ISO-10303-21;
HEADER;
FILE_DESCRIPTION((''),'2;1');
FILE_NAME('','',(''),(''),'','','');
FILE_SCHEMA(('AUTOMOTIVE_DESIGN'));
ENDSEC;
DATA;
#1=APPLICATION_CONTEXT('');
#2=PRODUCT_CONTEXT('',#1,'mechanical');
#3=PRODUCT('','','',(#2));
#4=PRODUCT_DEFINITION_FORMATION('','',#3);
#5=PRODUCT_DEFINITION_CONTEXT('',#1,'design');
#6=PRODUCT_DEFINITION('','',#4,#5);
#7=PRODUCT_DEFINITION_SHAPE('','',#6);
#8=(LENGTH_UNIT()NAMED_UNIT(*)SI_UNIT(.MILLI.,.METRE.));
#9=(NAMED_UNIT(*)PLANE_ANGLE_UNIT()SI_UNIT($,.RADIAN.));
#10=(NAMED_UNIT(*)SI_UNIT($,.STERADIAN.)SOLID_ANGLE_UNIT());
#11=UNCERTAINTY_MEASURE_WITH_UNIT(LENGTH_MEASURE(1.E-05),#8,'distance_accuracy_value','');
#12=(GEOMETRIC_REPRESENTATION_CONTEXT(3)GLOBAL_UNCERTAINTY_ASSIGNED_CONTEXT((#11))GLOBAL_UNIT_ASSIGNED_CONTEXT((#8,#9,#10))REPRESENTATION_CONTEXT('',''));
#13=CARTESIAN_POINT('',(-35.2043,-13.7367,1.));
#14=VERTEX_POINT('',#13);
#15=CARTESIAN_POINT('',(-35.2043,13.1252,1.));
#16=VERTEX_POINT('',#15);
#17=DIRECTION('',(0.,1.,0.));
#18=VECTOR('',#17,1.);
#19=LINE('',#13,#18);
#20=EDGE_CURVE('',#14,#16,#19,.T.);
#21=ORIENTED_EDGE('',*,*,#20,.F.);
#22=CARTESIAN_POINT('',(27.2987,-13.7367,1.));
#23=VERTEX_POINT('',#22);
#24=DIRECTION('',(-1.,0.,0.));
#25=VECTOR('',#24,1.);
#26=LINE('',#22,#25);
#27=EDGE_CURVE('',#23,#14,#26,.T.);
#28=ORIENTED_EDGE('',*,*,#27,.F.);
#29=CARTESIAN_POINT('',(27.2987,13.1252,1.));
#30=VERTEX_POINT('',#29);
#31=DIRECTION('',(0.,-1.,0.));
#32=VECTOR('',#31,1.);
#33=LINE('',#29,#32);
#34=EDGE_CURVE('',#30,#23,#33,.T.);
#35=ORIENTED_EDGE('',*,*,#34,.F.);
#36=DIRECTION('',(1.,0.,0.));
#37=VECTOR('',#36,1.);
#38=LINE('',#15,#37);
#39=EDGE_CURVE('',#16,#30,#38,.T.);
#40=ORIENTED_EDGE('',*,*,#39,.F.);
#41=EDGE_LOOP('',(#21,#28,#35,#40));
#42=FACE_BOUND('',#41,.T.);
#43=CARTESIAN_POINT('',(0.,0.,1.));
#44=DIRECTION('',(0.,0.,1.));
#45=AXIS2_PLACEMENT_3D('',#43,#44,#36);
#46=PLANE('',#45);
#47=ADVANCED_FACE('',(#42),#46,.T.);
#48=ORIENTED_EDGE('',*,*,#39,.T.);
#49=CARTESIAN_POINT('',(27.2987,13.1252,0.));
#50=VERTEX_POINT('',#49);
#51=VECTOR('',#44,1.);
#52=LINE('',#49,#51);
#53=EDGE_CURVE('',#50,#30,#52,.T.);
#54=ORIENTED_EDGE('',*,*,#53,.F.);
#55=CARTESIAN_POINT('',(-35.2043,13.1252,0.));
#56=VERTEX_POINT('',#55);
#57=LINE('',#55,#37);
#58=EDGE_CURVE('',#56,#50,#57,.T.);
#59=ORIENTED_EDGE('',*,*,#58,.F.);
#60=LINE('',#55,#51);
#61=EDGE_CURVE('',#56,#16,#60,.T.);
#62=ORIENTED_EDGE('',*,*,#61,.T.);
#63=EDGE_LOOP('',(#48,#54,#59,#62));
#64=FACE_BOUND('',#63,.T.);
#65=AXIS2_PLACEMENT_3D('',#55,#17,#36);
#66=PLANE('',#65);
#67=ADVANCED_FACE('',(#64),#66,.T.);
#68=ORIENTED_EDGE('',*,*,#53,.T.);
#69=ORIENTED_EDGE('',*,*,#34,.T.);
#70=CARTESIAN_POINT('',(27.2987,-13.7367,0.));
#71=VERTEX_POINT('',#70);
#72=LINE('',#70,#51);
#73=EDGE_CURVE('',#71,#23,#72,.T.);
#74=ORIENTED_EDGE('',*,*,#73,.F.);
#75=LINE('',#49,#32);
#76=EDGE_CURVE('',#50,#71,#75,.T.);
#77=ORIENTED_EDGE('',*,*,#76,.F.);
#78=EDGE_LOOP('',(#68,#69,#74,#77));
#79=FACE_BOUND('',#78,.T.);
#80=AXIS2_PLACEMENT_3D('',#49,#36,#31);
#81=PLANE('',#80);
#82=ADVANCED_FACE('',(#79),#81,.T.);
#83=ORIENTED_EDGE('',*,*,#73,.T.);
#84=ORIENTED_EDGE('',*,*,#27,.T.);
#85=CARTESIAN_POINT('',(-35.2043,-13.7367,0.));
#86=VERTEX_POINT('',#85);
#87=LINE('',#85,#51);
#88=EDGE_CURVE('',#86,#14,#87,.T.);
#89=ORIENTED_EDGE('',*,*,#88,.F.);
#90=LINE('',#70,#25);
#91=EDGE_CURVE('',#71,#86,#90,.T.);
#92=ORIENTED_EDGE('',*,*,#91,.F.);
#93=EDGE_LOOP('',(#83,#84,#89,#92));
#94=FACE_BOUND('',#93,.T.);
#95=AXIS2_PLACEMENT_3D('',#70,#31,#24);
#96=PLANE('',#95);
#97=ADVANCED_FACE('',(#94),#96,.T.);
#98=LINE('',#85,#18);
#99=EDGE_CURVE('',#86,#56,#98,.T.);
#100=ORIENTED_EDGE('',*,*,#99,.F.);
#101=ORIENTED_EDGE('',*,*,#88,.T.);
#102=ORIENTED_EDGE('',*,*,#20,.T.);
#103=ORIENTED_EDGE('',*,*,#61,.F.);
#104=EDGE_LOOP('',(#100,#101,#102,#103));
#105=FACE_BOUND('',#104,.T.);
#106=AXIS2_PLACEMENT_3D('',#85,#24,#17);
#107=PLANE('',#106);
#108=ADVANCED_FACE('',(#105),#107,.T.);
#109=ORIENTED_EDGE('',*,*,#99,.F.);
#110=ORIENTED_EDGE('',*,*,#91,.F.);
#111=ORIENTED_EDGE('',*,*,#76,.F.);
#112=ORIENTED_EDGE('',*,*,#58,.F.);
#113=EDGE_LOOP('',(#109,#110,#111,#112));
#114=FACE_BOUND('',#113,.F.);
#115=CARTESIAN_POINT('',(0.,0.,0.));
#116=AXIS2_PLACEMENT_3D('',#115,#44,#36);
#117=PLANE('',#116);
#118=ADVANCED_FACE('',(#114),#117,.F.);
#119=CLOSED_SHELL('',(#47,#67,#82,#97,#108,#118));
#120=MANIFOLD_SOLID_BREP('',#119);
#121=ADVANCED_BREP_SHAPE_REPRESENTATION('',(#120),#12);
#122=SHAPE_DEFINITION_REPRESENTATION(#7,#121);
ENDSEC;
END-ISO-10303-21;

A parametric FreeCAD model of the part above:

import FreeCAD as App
import Part
import Sketcher
from FreeCAD import Vector

doc = App.newDocument("Part")
body = doc.addObject("PartDesign::Body", "Body")

sketch1 = body.newObject("Sketcher::SketchObject", "Sketch")
sketch1.AttachmentSupport = (doc.getObject("XY_Plane"), [""])
sketch1.MapMode = "FlatFace"
sketch1.addGeometry(Part.LineSegment(Vector(27, 13, 0), Vector(-35, 13, 0)), False)
sketch1.addGeometry(Part.LineSegment(Vector(-35, 13, 0), Vector(-35, -14, 0)), False)
sketch1.addGeometry(Part.LineSegment(Vector(-35, -14, 0), Vector(27, -14, 0)), False)
sketch1.addGeometry(Part.LineSegment(Vector(27, -14, 0), Vector(27, 13, 0)), False)
sketch1.addConstraint(Sketcher.Constraint("Coincident", 0, 2, 1, 1))
sketch1.addConstraint(Sketcher.Constraint("Coincident", 1, 2, 2, 1))
sketch1.addConstraint(Sketcher.Constraint("Coincident", 2, 2, 3, 1))
sketch1.addConstraint(Sketcher.Constraint("Coincident", 3, 2, 0, 1))
sketch1.addConstraint(Sketcher.Constraint("Horizontal", 0))
sketch1.addConstraint(Sketcher.Constraint("Vertical", 1))
sketch1.addConstraint(Sketcher.Constraint("Horizontal", 2))
sketch1.addConstraint(Sketcher.Constraint("Vertical", 3))
sketch1.addConstraint(Sketcher.Constraint("DistanceX", 0, 2, 0, 1, 62.503))
sketch1.addConstraint(Sketcher.Constraint("DistanceY", 1, 2, 1, 1, 26.862))
sketch1.addConstraint(Sketcher.Constraint("DistanceX", 0, 2, -1, 1, 35.2043))
sketch1.addConstraint(Sketcher.Constraint("DistanceY", -1, 1, 0, 2, 13.1252))
pad1 = body.newObject("PartDesign::Pad", "Pad")
pad1.Profile = sketch1
pad1.Length = 1

doc.recompute()
